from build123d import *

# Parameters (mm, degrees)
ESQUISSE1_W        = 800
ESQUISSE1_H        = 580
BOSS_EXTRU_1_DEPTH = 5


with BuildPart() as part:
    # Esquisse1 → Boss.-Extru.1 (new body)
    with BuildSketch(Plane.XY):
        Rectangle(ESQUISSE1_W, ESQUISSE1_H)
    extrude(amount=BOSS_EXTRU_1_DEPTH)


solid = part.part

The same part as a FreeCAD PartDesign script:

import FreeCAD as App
import Part
import Sketcher
Q = App.Units.Quantity


def add_polygon(sketch, points):
    """Adds a closed chain of lines whose ends are joined by coincident constraints."""
    first, n = sketch.GeometryCount, len(points)
    for a, b in zip(points, points[1:] + points[:1]):
        sketch.addGeometry(Part.LineSegment(App.Vector(*a, 0), App.Vector(*b, 0)), False)
    for i in range(n):
        sketch.addConstraint(Sketcher.Constraint("Coincident", first + i, 2, first + (i + 1) % n, 1))

doc = App.newDocument("Part")
body = doc.addObject("PartDesign::Body", "Body")

# Sketch on XY plane
sketch1 = body.newObject("Sketcher::SketchObject", "Sketch")
sketch1.AttachmentSupport = (doc.getObject("XY_Plane"), [""])
sketch1.MapMode = "FlatFace"
add_polygon(sketch1, [(-400, 290), (-400, -290), (400, -290), (400, 290)])  # lines 0-3
sketch1.addConstraint([
    Sketcher.Constraint("Vertical", 0),
    Sketcher.Constraint("Horizontal", 1),
    Sketcher.Constraint("Vertical", 2),
    Sketcher.Constraint("Horizontal", 3),
    Sketcher.Constraint("Symmetric", 0, 2, 2, 2, -1, 1),
    Sketcher.Constraint("DistanceX", 1, 1, 1, 2, Q("800 mm")),
    Sketcher.Constraint("DistanceY", 0, 2, 0, 1, Q("580 mm")),
])
pad1 = body.newObject("PartDesign::Pad", "Pad")
pad1.Profile = sketch1
pad1.Length = 5

doc.recompute()
